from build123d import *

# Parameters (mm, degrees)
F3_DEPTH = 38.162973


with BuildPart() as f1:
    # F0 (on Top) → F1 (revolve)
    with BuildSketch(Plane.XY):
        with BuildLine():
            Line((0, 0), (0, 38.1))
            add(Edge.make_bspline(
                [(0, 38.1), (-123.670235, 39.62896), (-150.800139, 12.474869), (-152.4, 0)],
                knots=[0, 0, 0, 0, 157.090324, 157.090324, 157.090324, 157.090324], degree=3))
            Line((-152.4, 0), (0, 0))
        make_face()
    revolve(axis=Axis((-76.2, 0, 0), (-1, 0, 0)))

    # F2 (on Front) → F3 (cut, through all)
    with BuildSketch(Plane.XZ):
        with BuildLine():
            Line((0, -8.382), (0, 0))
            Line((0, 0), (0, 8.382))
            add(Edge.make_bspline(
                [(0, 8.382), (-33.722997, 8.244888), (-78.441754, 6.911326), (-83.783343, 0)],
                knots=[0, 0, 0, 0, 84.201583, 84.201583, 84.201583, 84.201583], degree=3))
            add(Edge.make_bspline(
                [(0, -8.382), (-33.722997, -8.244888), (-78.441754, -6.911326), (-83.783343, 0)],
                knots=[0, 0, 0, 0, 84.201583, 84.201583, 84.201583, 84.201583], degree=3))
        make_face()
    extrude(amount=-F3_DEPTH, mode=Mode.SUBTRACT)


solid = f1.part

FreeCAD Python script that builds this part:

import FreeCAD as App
import Part
import Sketcher

doc = App.newDocument("Part")
body = doc.addObject("PartDesign::Body", "Body")

sketch1 = body.newObject("Sketcher::SketchObject", "Sketch")
sketch1.AttachmentSupport = (doc.getObject("XY_Plane"), [""])
sketch1.MapMode = "FlatFace"
sketch1.addGeometry(Part.LineSegment(App.Vector(0, 0, 0), App.Vector(0, 38.1, 0)), False)
sketch1.addGeometry(Part.BSplineCurve([App.Vector(0, 38.1, 0), App.Vector(-123.670235, 39.62896, 0), App.Vector(-150.800139, 12.474869, 0), App.Vector(-152.4, 0, 0)], [4, 4], [0, 157.090324], False, 3, [1, 1, 1, 1], False), False)
sketch1.addGeometry(Part.LineSegment(App.Vector(-152.4, 0, 0), App.Vector(0, 0, 0)), False)
sketch1.addConstraint(Sketcher.Constraint("Block", 1))
sketch1.addConstraint(Sketcher.Constraint("Coincident", 0, 2, 1, 1))
sketch1.addConstraint(Sketcher.Constraint("Coincident", 1, 2, 2, 1))
sketch1.addConstraint(Sketcher.Constraint("Coincident", 2, 2, 0, 1))
sketch1.addConstraint(Sketcher.Constraint("Vertical", 0))
sketch1.addConstraint(Sketcher.Constraint("Horizontal", 2))
revolution = body.newObject("PartDesign::Revolution", "Revolution")
revolution.Profile = sketch1
revolution.ReferenceAxis = (sketch1, ["H_Axis"])
revolution.Angle = 360

sketch2 = body.newObject("Sketcher::SketchObject", "Sketch001")
sketch2.AttachmentSupport = (doc.getObject("XZ_Plane"), [""])
sketch2.MapMode = "FlatFace"
sketch2.addGeometry(Part.LineSegment(App.Vector(0, -8.382, 0), App.Vector(0, 8.382, 0)), False)
sketch2.addGeometry(Part.BSplineCurve([App.Vector(0, 8.382, 0), App.Vector(-33.722997, 8.244888, 0), App.Vector(-78.441754, 6.911326, 0), App.Vector(-83.783343, 0, 0)], [4, 4], [0, 84.201583], False, 3, [1, 1, 1, 1], False), False)
sketch2.addGeometry(Part.BSplineCurve([App.Vector(0, -8.382, 0), App.Vector(-33.722997, -8.244888, 0), App.Vector(-78.441754, -6.911326, 0), App.Vector(-83.783343, 0, 0)], [4, 4], [0, 84.201583], False, 3, [1, 1, 1, 1], False), False)
sketch2.addConstraint(Sketcher.Constraint("Block", 1))
sketch2.addConstraint(Sketcher.Constraint("Block", 2))
sketch2.addConstraint(Sketcher.Constraint("Coincident", 0, 2, 1, 1))
sketch2.addConstraint(Sketcher.Constraint("Coincident", 2, 1, 0, 1))
pocket1 = body.newObject("PartDesign::Pocket", "Pocket")
pocket1.Profile = sketch2
pocket1.Type = "ThroughAll"

doc.recompute()
